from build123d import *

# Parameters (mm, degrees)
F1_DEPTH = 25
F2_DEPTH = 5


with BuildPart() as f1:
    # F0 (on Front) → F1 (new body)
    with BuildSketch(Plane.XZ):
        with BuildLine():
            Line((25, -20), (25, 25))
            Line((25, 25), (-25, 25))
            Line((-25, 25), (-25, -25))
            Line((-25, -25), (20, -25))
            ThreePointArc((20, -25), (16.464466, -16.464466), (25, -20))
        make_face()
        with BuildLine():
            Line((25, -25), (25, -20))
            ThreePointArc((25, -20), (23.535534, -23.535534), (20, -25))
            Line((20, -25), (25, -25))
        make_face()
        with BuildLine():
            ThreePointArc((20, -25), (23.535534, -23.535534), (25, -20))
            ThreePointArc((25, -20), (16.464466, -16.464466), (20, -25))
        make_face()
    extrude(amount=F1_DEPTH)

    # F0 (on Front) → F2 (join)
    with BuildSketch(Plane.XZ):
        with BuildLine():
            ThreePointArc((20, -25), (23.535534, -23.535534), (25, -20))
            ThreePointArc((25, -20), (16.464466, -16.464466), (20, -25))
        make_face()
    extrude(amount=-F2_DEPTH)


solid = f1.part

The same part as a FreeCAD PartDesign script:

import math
import FreeCAD as App
import Part
import Sketcher


def add_polygon(sketch, points):
    """Adds a closed chain of lines whose ends are joined by coincident constraints."""
    first, n = sketch.GeometryCount, len(points)
    for a, b in zip(points, points[1:] + points[:1]):
        sketch.addGeometry(Part.LineSegment(App.Vector(*a, 0), App.Vector(*b, 0)), False)
    for i in range(n):
        sketch.addConstraint(Sketcher.Constraint("Coincident", first + i, 2, first + (i + 1) % n, 1))

doc = App.newDocument("Part")
body = doc.addObject("PartDesign::Body", "Body")

# Sketch on XZ plane
sketch1 = doc.addObject("Sketcher::SketchObject", "Sketch")
body.addObject(sketch1)
sketch1.AttachmentSupport = (doc.XZ_Plane, [""])
sketch1.MapMode = "FlatFace"
add_polygon(sketch1, [(25, 25), (-25, 25), (-25, -25), (25, -25)])  # lines 0-3
sketch1.addConstraint([
    Sketcher.Constraint("Horizontal", 0),
    Sketcher.Constraint("Vertical", 1),
    Sketcher.Constraint("Horizontal", 2),
    Sketcher.Constraint("Vertical", 3),
    Sketcher.Constraint("Symmetric", 0, 2, 2, 2, -1, 1),
    Sketcher.Constraint("Equal", 2, 1),
    Sketcher.Constraint("DistanceX", 0, 2, 0, 1, 50.0),
])
pad1 = doc.addObject("PartDesign::Pad", "Pad")
body.addObject(pad1)
pad1.Profile = sketch1
pad1.Length = 25

# Sketch on XZ plane
sketch2 = doc.addObject("Sketcher::SketchObject", "Sketch001")
body.addObject(sketch2)
sketch2.AttachmentSupport = (doc.XZ_Plane, [""])
sketch2.MapMode = "FlatFace"
sketch2.addGeometry([
    Part.ArcOfCircle(Part.Circle(App.Vector(20, -20, 0), App.Vector(0, 0, 1), 5), math.radians(-90.000004), math.radians(0.000004)),
    Part.ArcOfCircle(Part.Circle(App.Vector(20, -20, 0), App.Vector(0, 0, 1), 5), math.radians(-0.000001), math.radians(270.000001)),
], False)
sketch2.addConstraint([
    Sketcher.Constraint("Tangent", 0, 1, 1, 2),
    Sketcher.Constraint("Coincident", 1, 1, 0, 2),
    Sketcher.Constraint("Horizontal", 0, 3, 1, 1),
    Sketcher.Constraint("Vertical", 1, 3, 0, 1),
    Sketcher.Constraint("Radius", 0, 5.0),
    Sketcher.Constraint("DistanceX", -1, 1, 0, 3, 20.0),
    Sketcher.Constraint("DistanceY", 0, 3, -1, 1, 20.0),
])
pad2 = doc.addObject("PartDesign::Pad", "Pad001")
body.addObject(pad2)
pad2.Profile = sketch2
pad2.Length = 5
pad2.Reversed = True

doc.recompute()
